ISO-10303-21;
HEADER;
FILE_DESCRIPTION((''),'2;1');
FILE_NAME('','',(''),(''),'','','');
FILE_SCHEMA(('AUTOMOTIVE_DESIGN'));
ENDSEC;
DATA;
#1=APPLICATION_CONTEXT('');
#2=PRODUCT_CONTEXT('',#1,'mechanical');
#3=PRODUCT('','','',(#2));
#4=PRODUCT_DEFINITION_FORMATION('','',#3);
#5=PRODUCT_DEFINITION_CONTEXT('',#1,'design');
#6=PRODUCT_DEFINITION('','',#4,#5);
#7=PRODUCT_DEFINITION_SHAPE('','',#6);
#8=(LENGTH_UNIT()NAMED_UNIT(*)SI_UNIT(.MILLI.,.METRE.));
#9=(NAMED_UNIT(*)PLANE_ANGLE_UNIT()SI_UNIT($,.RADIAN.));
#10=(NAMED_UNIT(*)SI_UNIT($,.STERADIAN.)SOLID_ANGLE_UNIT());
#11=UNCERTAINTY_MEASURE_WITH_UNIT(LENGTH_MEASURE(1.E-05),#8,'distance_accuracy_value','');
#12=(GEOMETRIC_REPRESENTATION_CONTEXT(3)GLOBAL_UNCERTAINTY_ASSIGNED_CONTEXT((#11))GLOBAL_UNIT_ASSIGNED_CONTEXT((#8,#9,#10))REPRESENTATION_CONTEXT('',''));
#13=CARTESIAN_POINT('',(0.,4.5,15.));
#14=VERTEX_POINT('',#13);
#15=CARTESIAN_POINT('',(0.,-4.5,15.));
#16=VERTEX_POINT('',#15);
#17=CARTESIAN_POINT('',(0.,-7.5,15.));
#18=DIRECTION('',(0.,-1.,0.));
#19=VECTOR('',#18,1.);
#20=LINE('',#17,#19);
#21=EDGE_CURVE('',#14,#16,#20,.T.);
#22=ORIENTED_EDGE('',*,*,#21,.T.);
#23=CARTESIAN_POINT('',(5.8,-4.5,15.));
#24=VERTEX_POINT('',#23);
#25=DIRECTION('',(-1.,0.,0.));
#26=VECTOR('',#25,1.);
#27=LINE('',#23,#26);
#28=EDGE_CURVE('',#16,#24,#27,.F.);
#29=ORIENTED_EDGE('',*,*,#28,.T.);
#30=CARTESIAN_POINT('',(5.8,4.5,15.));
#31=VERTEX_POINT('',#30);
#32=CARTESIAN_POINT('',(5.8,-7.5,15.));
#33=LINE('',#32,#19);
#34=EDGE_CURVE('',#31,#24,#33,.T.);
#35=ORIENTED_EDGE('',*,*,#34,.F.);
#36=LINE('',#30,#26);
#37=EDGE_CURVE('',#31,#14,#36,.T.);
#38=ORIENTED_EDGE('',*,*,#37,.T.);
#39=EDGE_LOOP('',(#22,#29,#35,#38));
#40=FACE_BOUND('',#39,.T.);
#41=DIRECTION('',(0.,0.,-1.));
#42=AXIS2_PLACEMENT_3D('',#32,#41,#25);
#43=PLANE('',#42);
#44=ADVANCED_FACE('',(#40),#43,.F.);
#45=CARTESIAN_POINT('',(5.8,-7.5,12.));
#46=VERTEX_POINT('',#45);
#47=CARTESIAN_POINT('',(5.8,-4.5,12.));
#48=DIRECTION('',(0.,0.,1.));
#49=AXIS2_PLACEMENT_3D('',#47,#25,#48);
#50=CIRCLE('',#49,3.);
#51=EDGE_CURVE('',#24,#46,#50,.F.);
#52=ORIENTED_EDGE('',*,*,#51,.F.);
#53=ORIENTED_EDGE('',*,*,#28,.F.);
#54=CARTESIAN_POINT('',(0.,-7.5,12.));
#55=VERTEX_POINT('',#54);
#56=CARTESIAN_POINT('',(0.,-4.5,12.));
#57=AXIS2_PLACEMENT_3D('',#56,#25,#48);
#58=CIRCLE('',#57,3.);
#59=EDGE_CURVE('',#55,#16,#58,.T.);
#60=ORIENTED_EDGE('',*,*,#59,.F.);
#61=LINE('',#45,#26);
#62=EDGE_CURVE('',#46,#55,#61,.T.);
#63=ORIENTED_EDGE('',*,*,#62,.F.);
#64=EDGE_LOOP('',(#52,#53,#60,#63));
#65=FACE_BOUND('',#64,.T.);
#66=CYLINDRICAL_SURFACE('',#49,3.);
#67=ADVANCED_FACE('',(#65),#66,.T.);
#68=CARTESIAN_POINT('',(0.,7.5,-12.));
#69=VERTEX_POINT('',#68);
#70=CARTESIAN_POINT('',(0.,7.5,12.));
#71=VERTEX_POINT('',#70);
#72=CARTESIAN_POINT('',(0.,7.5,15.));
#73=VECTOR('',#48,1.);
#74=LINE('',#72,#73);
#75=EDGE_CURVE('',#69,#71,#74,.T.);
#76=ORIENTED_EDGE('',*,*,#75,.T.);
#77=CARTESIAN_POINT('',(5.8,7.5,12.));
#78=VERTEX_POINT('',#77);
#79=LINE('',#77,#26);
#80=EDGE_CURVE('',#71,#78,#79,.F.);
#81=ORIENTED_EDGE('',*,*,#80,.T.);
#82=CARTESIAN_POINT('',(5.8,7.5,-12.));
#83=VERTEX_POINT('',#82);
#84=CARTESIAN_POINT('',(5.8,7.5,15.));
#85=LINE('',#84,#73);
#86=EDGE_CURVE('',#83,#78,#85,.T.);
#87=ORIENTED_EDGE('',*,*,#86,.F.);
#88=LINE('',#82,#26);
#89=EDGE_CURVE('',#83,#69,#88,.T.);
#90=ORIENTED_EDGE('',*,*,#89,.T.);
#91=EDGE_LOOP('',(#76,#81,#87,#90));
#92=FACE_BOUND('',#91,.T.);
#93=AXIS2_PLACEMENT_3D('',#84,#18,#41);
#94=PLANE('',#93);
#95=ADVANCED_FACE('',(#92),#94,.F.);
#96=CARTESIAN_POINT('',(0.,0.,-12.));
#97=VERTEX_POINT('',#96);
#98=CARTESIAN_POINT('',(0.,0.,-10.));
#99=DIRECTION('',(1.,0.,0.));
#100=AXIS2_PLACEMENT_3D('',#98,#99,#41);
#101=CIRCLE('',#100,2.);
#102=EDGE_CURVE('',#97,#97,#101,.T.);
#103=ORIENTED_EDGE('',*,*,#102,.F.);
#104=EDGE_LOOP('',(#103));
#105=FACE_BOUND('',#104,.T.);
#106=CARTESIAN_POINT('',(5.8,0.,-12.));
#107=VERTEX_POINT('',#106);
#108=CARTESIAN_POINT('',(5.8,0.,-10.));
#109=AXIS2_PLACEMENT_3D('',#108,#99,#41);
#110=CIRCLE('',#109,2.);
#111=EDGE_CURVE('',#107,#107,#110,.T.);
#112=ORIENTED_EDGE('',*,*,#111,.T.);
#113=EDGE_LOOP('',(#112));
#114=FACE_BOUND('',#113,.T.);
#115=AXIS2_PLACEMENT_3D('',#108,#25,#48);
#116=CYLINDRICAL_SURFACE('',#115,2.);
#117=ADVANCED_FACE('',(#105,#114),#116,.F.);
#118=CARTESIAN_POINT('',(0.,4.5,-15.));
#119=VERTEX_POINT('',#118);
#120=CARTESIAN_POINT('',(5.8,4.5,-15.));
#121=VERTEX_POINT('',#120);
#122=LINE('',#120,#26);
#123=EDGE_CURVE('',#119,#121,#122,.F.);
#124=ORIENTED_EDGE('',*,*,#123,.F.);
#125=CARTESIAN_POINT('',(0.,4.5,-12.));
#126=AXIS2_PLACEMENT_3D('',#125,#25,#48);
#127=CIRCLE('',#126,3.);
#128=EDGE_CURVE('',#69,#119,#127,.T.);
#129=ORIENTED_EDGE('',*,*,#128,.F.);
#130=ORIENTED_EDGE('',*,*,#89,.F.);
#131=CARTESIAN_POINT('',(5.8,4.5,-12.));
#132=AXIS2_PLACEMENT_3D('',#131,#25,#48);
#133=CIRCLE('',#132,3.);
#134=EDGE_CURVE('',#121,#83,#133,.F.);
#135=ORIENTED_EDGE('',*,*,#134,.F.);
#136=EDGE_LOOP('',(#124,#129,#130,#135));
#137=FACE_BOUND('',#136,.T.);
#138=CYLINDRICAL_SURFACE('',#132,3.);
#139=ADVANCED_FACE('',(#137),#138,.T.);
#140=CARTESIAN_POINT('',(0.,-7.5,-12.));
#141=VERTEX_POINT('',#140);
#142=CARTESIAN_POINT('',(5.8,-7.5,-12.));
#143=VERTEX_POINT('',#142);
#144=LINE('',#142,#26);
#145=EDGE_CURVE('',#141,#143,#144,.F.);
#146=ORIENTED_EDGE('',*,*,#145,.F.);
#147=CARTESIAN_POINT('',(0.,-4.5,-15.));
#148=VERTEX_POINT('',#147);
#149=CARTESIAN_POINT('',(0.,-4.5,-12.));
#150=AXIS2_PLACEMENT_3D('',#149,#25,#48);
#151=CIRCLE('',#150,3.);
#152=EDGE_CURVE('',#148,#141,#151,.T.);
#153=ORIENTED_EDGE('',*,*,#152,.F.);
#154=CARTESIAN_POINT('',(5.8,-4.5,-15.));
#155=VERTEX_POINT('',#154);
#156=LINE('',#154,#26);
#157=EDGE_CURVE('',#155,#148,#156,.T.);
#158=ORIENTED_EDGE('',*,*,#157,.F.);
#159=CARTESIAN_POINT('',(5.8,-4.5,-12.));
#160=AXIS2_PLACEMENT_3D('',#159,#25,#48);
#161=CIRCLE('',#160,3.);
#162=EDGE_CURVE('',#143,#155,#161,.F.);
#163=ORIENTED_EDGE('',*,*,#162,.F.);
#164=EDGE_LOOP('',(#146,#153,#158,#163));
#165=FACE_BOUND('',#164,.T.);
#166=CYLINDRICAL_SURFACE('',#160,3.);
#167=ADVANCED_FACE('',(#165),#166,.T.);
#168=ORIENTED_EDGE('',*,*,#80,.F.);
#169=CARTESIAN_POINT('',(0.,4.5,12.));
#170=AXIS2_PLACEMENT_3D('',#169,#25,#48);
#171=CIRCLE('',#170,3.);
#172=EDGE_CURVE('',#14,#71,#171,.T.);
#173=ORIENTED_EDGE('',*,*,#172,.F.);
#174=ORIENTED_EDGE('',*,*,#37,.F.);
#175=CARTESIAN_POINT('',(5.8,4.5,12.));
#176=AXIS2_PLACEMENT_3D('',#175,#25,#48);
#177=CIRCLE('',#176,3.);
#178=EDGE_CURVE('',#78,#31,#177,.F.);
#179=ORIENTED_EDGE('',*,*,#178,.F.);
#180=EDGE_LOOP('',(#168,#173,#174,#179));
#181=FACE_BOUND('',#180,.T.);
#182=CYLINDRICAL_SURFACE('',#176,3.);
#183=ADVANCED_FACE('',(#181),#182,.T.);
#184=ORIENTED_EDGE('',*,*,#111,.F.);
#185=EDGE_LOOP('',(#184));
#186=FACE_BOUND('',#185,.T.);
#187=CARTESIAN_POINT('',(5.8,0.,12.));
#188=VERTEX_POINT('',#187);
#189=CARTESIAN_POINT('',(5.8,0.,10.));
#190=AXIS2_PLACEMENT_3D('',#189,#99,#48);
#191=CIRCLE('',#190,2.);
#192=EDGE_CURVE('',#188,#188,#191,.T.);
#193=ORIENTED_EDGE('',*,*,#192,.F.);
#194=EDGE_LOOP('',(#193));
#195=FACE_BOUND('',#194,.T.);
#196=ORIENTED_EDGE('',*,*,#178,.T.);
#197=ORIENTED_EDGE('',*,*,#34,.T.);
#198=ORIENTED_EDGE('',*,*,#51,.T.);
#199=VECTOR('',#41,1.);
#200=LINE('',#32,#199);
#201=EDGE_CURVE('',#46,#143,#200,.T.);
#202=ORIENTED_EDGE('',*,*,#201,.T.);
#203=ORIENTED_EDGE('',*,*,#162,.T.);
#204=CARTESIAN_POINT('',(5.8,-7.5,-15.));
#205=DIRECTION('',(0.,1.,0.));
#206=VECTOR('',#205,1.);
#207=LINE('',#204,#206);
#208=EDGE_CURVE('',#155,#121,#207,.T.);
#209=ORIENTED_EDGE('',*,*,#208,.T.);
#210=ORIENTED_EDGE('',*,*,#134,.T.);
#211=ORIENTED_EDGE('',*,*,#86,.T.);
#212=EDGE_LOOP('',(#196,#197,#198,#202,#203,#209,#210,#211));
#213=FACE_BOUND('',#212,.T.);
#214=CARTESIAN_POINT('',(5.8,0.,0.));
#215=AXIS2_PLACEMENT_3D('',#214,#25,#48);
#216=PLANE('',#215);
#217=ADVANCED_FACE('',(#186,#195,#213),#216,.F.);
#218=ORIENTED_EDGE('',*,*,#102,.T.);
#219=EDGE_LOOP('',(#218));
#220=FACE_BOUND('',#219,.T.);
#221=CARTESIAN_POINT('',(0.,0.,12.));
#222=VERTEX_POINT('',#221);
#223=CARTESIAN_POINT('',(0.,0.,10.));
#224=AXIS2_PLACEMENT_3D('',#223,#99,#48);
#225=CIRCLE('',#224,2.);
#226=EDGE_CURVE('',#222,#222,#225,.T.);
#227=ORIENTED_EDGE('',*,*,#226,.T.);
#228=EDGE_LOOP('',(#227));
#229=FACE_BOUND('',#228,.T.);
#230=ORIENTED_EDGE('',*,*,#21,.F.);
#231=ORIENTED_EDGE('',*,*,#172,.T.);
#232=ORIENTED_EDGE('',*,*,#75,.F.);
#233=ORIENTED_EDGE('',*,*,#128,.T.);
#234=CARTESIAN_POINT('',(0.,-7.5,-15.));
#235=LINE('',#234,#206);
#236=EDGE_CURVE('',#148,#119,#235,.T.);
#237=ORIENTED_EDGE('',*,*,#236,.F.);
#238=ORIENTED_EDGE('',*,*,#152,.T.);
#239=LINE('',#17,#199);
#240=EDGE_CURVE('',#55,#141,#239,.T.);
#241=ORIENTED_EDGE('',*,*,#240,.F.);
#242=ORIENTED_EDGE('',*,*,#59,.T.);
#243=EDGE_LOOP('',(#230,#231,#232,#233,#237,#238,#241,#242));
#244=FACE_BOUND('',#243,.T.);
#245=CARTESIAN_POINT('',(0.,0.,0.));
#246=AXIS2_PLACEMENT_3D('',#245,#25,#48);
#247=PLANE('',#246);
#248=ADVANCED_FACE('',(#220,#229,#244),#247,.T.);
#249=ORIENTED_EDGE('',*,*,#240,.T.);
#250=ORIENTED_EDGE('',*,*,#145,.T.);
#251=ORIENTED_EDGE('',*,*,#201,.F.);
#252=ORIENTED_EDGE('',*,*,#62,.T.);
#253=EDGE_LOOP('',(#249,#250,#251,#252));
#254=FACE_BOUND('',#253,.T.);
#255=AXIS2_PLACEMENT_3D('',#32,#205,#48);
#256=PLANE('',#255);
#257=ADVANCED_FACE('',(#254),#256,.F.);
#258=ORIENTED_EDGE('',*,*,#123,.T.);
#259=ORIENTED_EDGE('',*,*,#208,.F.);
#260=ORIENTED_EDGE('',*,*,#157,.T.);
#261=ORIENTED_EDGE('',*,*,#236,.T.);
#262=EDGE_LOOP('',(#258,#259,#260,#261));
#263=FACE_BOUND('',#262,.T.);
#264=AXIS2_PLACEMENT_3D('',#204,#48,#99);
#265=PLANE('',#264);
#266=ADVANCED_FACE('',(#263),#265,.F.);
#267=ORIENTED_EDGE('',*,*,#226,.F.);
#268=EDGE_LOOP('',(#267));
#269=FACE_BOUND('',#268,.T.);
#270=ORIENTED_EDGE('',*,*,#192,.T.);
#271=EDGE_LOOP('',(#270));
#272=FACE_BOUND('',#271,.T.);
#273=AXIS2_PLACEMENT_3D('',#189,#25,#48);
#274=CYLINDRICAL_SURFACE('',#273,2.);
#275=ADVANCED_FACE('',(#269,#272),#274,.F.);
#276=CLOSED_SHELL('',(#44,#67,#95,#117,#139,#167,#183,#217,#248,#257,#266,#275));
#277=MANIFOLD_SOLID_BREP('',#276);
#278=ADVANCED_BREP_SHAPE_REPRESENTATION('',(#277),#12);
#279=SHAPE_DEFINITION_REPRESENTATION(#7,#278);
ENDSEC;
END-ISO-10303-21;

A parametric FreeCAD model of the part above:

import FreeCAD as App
import Part
import Sketcher
from FreeCAD import Vector


def edges_at(feature, points):
    """Names of the edges that pass closest to the given points."""
    edges = feature.Shape.Edges
    near = lambda p: min(range(len(edges)), key=lambda i: edges[i].distToShape(Part.Vertex(*p))[0])
    return sorted({f"Edge{near(p) + 1}" for p in points})


def add_polygon(sketch, points):
    """Adds a closed chain of lines whose ends are joined by coincident constraints."""
    first, n = sketch.GeometryCount, len(points)
    for a, b in zip(points, points[1:] + points[:1]):
        sketch.addGeometry(Part.LineSegment(App.Vector(*a, 0), App.Vector(*b, 0)), False)
    for i in range(n):
        sketch.addConstraint(Sketcher.Constraint("Coincident", first + i, 2, first + (i + 1) % n, 1))

doc = App.newDocument("Part")
body = doc.addObject("PartDesign::Body", "Body")

# Sketch on YZ plane
sketch1 = body.newObject("Sketcher::SketchObject", "Sketch")
sketch1.AttachmentSupport = (doc.getObject("YZ_Plane"), [""])
sketch1.MapMode = "FlatFace"
add_polygon(sketch1, [(7.5, 15), (-7.5, 15), (-7.5, -15), (7.5, -15)])  # lines 0-3
sketch1.addGeometry(Part.Circle(Vector(0, 10, 0), Vector(0, 0, 1), 2), False)  # 4
sketch1.addGeometry(Part.Circle(Vector(0, -10, 0), Vector(0, 0, 1), 2), False)  # 5
sketch1.addConstraint([
    Sketcher.Constraint("Horizontal", 0),
    Sketcher.Constraint("Vertical", 1),
    Sketcher.Constraint("Horizontal", 2),
    Sketcher.Constraint("Vertical", 3),
    Sketcher.Constraint("Equal", 4, 5),
    Sketcher.Constraint("Symmetric", 4, 3, 5, 3, -1, 1),
    Sketcher.Constraint("Symmetric", 0, 2, 2, 2, -1, 1),
    Sketcher.Constraint("PointOnObject", 4, 3, -2),
    Sketcher.Constraint("Diameter", 4, 4.0),
    Sketcher.Constraint("DistanceX", 0, 2, 0, 1, 15.0),
    Sketcher.Constraint("DistanceY", 1, 2, 1, 1, 30.0),
    Sketcher.Constraint("DistanceY", -1, 1, 4, 3, 10.0),
])
pad1 = body.newObject("PartDesign::Pad", "Pad")
pad1.Profile = sketch1
pad1.Length = 5.8
doc.recompute()

fillet = body.newObject("PartDesign::Fillet", "Fillet")
fillet.Base = (pad1, edges_at(pad1, [
    (2.9, -7.5, -15),
    (2.9, -7.5, 15),
    (2.9, 7.5, 15),
    (2.9, 7.5, -15),
]))
fillet.Radius = 3

doc.recompute()
